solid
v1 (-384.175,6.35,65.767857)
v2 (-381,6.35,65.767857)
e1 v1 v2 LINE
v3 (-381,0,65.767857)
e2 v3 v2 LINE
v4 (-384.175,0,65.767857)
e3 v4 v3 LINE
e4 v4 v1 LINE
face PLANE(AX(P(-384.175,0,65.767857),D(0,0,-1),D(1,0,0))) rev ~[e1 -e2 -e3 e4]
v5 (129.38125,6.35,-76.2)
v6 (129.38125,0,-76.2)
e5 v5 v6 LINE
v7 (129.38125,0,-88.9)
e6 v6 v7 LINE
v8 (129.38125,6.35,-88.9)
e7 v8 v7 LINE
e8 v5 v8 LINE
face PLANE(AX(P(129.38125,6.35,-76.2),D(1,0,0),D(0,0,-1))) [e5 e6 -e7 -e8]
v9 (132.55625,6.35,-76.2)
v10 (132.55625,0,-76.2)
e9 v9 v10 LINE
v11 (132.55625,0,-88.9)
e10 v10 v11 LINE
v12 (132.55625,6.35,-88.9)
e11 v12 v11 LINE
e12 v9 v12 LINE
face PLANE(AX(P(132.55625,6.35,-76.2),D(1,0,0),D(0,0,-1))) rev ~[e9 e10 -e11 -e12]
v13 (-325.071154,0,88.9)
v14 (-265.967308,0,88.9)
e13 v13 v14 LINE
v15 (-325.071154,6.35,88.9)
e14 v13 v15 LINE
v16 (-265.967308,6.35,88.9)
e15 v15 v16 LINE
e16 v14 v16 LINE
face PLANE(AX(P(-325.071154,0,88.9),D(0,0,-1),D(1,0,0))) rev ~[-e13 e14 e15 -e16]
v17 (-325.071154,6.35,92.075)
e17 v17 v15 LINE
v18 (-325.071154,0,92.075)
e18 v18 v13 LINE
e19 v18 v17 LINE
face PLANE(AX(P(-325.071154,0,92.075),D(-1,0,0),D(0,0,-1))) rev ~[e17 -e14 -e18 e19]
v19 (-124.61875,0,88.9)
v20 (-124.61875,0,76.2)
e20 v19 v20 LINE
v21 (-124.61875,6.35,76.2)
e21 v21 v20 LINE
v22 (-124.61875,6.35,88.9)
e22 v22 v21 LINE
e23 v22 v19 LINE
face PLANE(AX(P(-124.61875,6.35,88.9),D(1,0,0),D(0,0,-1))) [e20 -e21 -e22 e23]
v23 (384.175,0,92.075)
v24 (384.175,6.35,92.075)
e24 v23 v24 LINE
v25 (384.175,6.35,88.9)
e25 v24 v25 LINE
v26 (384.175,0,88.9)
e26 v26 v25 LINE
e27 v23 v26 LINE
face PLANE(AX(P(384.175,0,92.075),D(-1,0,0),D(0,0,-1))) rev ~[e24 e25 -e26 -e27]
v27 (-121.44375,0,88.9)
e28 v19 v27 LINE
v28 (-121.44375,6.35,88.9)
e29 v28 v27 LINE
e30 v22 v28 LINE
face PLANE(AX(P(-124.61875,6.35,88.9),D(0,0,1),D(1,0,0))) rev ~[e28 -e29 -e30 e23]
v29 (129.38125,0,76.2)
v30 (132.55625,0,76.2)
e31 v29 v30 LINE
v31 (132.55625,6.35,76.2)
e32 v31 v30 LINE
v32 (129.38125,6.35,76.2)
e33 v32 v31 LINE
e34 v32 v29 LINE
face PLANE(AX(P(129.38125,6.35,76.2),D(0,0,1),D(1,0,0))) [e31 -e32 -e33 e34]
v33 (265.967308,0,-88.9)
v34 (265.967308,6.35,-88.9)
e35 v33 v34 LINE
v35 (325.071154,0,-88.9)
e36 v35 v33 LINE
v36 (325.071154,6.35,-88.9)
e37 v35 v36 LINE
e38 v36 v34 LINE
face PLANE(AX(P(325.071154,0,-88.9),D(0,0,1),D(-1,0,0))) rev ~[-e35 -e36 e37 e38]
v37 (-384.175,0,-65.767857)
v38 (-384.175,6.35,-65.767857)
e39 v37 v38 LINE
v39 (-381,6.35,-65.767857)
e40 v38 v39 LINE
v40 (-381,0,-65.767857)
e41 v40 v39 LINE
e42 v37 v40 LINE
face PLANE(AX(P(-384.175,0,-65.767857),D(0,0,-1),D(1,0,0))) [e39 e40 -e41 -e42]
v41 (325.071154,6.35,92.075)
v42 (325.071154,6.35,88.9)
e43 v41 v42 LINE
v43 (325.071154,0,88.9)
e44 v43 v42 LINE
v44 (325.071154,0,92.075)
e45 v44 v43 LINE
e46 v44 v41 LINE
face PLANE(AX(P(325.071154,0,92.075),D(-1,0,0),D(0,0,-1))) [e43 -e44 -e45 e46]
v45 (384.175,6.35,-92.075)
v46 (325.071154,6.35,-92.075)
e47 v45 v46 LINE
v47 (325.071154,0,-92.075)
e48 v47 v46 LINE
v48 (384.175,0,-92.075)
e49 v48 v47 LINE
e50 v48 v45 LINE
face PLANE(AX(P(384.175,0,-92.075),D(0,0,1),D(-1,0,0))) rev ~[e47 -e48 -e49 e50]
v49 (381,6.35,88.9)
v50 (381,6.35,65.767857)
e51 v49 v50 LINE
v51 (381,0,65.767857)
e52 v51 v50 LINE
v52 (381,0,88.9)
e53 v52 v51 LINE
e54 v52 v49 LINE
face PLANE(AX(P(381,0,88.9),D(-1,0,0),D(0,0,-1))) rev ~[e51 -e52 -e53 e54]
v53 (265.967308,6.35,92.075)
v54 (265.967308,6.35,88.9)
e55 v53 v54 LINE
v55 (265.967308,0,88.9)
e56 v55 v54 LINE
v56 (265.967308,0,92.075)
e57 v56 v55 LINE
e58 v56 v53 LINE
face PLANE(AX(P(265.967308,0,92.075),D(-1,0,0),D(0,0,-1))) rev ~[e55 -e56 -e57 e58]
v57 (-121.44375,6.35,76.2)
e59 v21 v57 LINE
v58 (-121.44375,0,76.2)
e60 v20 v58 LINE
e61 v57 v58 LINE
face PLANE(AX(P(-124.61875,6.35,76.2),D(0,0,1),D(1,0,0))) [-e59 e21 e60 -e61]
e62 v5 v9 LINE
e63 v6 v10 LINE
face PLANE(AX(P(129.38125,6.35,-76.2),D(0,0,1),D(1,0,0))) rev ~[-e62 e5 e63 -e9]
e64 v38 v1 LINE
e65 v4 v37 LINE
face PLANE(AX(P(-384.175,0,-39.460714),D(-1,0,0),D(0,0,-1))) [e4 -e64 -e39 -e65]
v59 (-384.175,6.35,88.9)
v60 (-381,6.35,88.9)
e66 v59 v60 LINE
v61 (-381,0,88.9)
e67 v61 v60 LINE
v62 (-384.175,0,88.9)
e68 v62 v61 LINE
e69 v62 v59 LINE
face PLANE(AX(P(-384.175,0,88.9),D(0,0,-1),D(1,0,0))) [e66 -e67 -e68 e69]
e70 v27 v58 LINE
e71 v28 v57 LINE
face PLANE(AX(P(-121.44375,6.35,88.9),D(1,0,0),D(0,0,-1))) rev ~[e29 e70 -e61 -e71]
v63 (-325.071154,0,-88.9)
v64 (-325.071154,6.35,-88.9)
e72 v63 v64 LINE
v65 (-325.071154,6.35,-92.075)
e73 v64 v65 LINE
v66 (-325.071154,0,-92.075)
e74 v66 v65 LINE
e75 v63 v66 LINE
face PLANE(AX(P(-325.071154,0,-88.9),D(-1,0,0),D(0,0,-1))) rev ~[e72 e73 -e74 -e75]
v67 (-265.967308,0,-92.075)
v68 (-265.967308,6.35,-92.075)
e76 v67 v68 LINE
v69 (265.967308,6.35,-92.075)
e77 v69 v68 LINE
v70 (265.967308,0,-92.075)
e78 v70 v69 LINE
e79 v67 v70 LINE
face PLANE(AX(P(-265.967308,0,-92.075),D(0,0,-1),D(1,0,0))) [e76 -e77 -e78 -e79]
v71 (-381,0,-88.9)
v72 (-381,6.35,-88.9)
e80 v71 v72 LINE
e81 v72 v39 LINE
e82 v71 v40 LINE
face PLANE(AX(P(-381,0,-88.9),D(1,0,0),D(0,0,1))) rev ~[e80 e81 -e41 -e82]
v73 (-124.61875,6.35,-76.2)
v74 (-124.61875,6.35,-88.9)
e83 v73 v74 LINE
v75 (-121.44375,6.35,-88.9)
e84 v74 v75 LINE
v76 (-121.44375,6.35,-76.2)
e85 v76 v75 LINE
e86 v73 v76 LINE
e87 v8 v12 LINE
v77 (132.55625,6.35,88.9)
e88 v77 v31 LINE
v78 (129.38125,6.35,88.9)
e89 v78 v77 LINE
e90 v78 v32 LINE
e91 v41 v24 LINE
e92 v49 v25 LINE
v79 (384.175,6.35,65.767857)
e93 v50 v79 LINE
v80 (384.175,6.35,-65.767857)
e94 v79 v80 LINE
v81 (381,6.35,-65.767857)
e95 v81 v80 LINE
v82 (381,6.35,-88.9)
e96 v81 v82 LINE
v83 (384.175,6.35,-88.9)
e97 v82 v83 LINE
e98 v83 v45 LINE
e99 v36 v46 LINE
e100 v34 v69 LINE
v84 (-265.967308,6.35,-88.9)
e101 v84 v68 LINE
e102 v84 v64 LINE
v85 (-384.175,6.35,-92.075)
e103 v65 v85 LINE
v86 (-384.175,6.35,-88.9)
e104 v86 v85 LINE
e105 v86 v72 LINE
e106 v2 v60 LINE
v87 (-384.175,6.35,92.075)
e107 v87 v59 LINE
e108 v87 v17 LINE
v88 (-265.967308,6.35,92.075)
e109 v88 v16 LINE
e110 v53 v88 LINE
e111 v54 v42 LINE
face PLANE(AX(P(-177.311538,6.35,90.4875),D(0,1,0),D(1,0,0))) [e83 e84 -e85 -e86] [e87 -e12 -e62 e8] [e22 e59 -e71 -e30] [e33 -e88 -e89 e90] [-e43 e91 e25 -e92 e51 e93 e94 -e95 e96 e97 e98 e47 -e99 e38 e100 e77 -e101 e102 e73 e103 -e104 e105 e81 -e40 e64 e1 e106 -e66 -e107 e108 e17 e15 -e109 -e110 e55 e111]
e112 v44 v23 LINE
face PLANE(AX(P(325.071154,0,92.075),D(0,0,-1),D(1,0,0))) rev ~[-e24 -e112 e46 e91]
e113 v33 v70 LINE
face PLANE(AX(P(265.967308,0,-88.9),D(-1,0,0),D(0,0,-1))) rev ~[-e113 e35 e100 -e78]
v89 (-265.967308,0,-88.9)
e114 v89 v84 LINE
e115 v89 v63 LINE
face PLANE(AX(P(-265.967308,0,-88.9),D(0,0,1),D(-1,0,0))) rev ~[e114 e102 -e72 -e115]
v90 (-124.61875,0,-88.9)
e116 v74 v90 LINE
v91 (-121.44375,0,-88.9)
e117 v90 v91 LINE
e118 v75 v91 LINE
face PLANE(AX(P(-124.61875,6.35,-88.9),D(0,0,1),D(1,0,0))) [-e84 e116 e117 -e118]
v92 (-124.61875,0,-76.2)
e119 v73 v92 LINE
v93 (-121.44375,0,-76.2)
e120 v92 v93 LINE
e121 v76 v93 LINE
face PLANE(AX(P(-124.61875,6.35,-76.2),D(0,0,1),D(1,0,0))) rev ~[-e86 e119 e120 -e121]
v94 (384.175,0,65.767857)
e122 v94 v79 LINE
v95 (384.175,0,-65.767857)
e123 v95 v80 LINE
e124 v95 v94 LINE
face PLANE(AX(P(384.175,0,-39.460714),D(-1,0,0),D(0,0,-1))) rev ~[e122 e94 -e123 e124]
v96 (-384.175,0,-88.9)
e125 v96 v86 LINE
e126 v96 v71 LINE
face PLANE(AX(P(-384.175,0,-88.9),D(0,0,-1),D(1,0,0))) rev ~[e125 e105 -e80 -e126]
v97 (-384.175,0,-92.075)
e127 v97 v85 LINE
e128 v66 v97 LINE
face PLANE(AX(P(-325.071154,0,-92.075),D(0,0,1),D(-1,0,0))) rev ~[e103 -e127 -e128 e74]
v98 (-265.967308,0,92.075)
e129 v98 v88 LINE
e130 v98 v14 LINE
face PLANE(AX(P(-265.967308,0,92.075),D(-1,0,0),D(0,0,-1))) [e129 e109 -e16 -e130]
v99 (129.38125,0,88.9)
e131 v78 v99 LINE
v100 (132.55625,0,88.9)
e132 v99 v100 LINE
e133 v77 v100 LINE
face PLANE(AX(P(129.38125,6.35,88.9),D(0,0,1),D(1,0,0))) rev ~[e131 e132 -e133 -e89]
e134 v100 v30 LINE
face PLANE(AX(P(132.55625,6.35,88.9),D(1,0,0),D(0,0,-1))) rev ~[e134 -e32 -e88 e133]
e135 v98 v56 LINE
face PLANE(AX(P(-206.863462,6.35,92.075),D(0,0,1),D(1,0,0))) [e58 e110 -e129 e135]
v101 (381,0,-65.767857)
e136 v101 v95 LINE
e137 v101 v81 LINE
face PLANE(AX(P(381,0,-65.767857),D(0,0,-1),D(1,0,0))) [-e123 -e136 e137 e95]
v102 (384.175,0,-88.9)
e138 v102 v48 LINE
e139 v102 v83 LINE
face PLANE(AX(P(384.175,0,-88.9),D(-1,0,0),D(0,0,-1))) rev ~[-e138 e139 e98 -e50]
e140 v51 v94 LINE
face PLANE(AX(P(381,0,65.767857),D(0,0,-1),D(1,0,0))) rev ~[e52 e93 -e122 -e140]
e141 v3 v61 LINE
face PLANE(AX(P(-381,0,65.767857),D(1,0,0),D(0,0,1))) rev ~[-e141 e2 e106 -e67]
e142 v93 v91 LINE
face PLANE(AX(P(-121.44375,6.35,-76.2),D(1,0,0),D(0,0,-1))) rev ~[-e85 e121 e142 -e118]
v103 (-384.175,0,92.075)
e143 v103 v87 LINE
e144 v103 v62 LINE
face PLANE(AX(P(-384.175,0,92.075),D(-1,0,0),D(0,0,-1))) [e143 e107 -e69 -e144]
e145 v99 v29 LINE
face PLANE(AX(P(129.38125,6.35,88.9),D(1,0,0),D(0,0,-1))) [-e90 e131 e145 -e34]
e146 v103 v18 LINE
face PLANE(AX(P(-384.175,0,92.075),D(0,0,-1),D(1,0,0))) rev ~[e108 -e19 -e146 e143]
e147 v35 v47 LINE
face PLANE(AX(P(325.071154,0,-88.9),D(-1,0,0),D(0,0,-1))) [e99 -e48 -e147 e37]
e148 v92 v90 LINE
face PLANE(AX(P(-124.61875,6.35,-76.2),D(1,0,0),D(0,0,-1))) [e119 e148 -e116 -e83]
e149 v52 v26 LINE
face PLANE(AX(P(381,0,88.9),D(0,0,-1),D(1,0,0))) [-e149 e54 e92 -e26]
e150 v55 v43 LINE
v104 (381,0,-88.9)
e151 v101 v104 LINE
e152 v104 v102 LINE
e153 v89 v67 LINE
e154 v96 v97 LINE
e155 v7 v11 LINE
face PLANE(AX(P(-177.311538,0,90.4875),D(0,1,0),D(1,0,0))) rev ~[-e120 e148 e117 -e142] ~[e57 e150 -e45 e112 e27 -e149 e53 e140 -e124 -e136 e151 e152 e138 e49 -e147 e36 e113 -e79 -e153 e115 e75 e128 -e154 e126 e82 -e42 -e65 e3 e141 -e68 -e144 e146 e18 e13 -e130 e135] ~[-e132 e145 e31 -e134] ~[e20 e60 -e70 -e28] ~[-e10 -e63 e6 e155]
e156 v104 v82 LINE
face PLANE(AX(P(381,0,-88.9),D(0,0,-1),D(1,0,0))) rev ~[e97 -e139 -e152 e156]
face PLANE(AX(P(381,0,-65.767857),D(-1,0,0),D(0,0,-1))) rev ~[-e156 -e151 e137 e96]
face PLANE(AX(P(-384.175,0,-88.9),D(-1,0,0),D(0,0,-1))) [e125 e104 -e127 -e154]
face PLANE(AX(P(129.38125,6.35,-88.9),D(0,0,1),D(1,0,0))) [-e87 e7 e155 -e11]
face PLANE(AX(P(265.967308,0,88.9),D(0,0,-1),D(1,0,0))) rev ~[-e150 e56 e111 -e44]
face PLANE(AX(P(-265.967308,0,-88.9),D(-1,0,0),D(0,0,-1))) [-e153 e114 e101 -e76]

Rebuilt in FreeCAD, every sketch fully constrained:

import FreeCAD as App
import Part
import Sketcher
from FreeCAD import Vector
Q = App.Units.Quantity

doc = App.newDocument("Part")
body = doc.addObject("PartDesign::Body", "Body")

# Sketch on XZ plane
sketch1 = body.newObject("Sketcher::SketchObject", "Sketch")
sketch1.AttachmentSupport = (doc.getObject("XZ_Plane"), [""])
sketch1.MapMode = "FlatFace"
sketch1.addGeometry(Part.LineSegment(Vector(-381, -88.9, 0), Vector(-381, -65.8, 0)), False)
sketch1.addGeometry(Part.LineSegment(Vector(-381, -65.8, 0), Vector(-384.2, -65.8, 0)), False)
sketch1.addGeometry(Part.LineSegment(Vector(-384.2, -65.8, 0), Vector(-384.2, -39.5, 0)), False)
sketch1.addGeometry(Part.LineSegment(Vector(-384.2, -39.5, 0), Vector(-381, -39.5, 0)), False)
sketch1.addGeometry(Part.LineSegment(Vector(-381, -39.5, 0), Vector(-381, -13.2, 0)), False)
sketch1.addGeometry(Part.LineSegment(Vector(-381, -13.2, 0), Vector(-384.2, -13.2, 0)), False)
sketch1.addGeometry(Part.LineSegment(Vector(-384.2, -13.2, 0), Vector(-384.2, 13.2, 0)), False)
sketch1.addGeometry(Part.LineSegment(Vector(-384.2, 13.2, 0), Vector(-381, 13.2, 0)), False)
sketch1.addGeometry(Part.LineSegment(Vector(-381, 13.2, 0), Vector(-381, 39.5, 0)), False)
sketch1.addGeometry(Part.LineSegment(Vector(-381, 39.5, 0), Vector(-384.2, 39.5, 0)), False)
sketch1.addGeometry(Part.LineSegment(Vector(-384.2, 39.5, 0), Vector(-384.2, 65.8, 0)), False)
sketch1.addGeometry(Part.LineSegment(Vector(-384.2, 65.8, 0), Vector(-381, 65.8, 0)), False)
sketch1.addGeometry(Part.LineSegment(Vector(-381, 65.8, 0), Vector(-381, 88.9, 0)), False)
sketch1.addGeometry(Part.LineSegment(Vector(-381, 88.9, 0), Vector(-384.2, 88.9, 0)), False)
sketch1.addGeometry(Part.LineSegment(Vector(-384.2, 88.9, 0), Vector(-384.2, 92.1, 0)), False)
sketch1.addGeometry(Part.LineSegment(Vector(-384.2, 92.1, 0), Vector(-325.1, 92.1, 0)), False)
sketch1.addGeometry(Part.LineSegment(Vector(-325.1, 92.1, 0), Vector(-325.1, 88.9, 0)), False)
sketch1.addGeometry(Part.LineSegment(Vector(-325.1, 88.9, 0), Vector(-266, 88.9, 0)), False)
sketch1.addGeometry(Part.LineSegment(Vector(-266, 88.9, 0), Vector(-266, 92.1, 0)), False)
sketch1.addGeometry(Part.LineSegment(Vector(-266, 92.1, 0), Vector(-206.9, 92.1, 0)), False)
sketch1.addGeometry(Part.LineSegment(Vector(-206.9, 92.1, 0), Vector(-206.9, 88.9, 0)), False)
sketch1.addGeometry(Part.LineSegment(Vector(-206.9, 88.9, 0), Vector(-147.8, 88.9, 0)), False)
sketch1.addGeometry(Part.LineSegment(Vector(-147.8, 88.9, 0), Vector(-147.8, 92.1, 0)), False)
sketch1.addGeometry(Part.LineSegment(Vector(-147.8, 92.1, 0), Vector(-88.7, 92.1, 0)), False)
sketch1.addGeometry(Part.LineSegment(Vector(-88.7, 92.1, 0), Vector(-88.7, 88.9, 0)), False)
sketch1.addGeometry(Part.LineSegment(Vector(-88.7, 88.9, 0), Vector(-29.6, 88.9, 0)), False)
sketch1.addGeometry(Part.LineSegment(Vector(-29.6, 88.9, 0), Vector(-29.6, 92.1, 0)), False)
sketch1.addGeometry(Part.LineSegment(Vector(-29.6, 92.1, 0), Vector(29.6, 92.1, 0)), False)
sketch1.addGeometry(Part.LineSegment(Vector(29.6, 92.1, 0), Vector(29.6, 88.9, 0)), False)
sketch1.addGeometry(Part.LineSegment(Vector(29.6, 88.9, 0), Vector(88.7, 88.9, 0)), False)
sketch1.addGeometry(Part.LineSegment(Vector(88.7, 88.9, 0), Vector(88.7, 92.1, 0)), False)
sketch1.addGeometry(Part.LineSegment(Vector(88.7, 92.1, 0), Vector(147.8, 92.1, 0)), False)
sketch1.addGeometry(Part.LineSegment(Vector(147.8, 92.1, 0), Vector(147.8, 88.9, 0)), False)
sketch1.addGeometry(Part.LineSegment(Vector(147.8, 88.9, 0), Vector(206.9, 88.9, 0)), False)
sketch1.addGeometry(Part.LineSegment(Vector(206.9, 88.9, 0), Vector(206.9, 92.1, 0)), False)
sketch1.addGeometry(Part.LineSegment(Vector(206.9, 92.1, 0), Vector(266, 92.1, 0)), False)
sketch1.addGeometry(Part.LineSegment(Vector(266, 92.1, 0), Vector(266, 88.9, 0)), False)
sketch1.addGeometry(Part.LineSegment(Vector(266, 88.9, 0), Vector(325.1, 88.9, 0)), False)
sketch1.addGeometry(Part.LineSegment(Vector(325.1, 88.9, 0), Vector(325.1, 92.1, 0)), False)
sketch1.addGeometry(Part.LineSegment(Vector(325.1, 92.1, 0), Vector(384.2, 92.1, 0)), False)
sketch1.addGeometry(Part.LineSegment(Vector(384.2, 92.1, 0), Vector(384.2, 88.9, 0)), False)
sketch1.addGeometry(Part.LineSegment(Vector(384.2, 88.9, 0), Vector(381, 88.9, 0)), False)
sketch1.addGeometry(Part.LineSegment(Vector(381, 88.9, 0), Vector(381, 65.8, 0)), False)
sketch1.addGeometry(Part.LineSegment(Vector(381, 65.8, 0), Vector(384.2, 65.8, 0)), False)
sketch1.addGeometry(Part.LineSegment(Vector(384.2, 65.8, 0), Vector(384.2, 39.5, 0)), False)
sketch1.addGeometry(Part.LineSegment(Vector(384.2, 39.5, 0), Vector(381, 39.5, 0)), False)
sketch1.addGeometry(Part.LineSegment(Vector(381, 39.5, 0), Vector(381, 13.2, 0)), False)
sketch1.addGeometry(Part.LineSegment(Vector(381, 13.2, 0), Vector(384.2, 13.2, 0)), False)
sketch1.addGeometry(Part.LineSegment(Vector(384.2, 13.2, 0), Vector(384.2, -13.2, 0)), False)
sketch1.addGeometry(Part.LineSegment(Vector(384.2, -13.2, 0), Vector(381, -13.2, 0)), False)
sketch1.addGeometry(Part.LineSegment(Vector(381, -13.2, 0), Vector(381, -39.5, 0)), False)
sketch1.addGeometry(Part.LineSegment(Vector(381, -39.5, 0), Vector(384.2, -39.5, 0)), False)
sketch1.addGeometry(Part.LineSegment(Vector(384.2, -39.5, 0), Vector(384.2, -65.8, 0)), False)
sketch1.addGeometry(Part.LineSegment(Vector(384.2, -65.8, 0), Vector(381, -65.8, 0)), False)
sketch1.addGeometry(Part.LineSegment(Vector(381, -65.8, 0), Vector(381, -88.9, 0)), False)
sketch1.addGeometry(Part.LineSegment(Vector(381, -88.9, 0), Vector(384.2, -88.9, 0)), False)
sketch1.addGeometry(Part.LineSegment(Vector(384.2, -88.9, 0), Vector(384.2, -92.1, 0)), False)
sketch1.addGeometry(Part.LineSegment(Vector(384.2, -92.1, 0), Vector(325.1, -92.1, 0)), False)
sketch1.addGeometry(Part.LineSegment(Vector(325.1, -92.1, 0), Vector(325.1, -88.9, 0)), False)
sketch1.addGeometry(Part.LineSegment(Vector(325.1, -88.9, 0), Vector(266, -88.9, 0)), False)
sketch1.addGeometry(Part.LineSegment(Vector(266, -88.9, 0), Vector(266, -92.1, 0)), False)
sketch1.addGeometry(Part.LineSegment(Vector(266, -92.1, 0), Vector(206.9, -92.1, 0)), False)
sketch1.addGeometry(Part.LineSegment(Vector(206.9, -92.1, 0), Vector(206.9, -88.9, 0)), False)
sketch1.addGeometry(Part.LineSegment(Vector(206.9, -88.9, 0), Vector(147.8, -88.9, 0)), False)
sketch1.addGeometry(Part.LineSegment(Vector(147.8, -88.9, 0), Vector(147.8, -92.1, 0)), False)
sketch1.addGeometry(Part.LineSegment(Vector(147.8, -92.1, 0), Vector(88.7, -92.1, 0)), False)
sketch1.addGeometry(Part.LineSegment(Vector(88.7, -92.1, 0), Vector(88.7, -88.9, 0)), False)
sketch1.addGeometry(Part.LineSegment(Vector(88.7, -88.9, 0), Vector(29.6, -88.9, 0)), False)
sketch1.addGeometry(Part.LineSegment(Vector(29.6, -88.9, 0), Vector(29.6, -92.1, 0)), False)
sketch1.addGeometry(Part.LineSegment(Vector(29.6, -92.1, 0), Vector(-29.6, -92.1, 0)), False)
sketch1.addGeometry(Part.LineSegment(Vector(-29.6, -92.1, 0), Vector(-29.6, -88.9, 0)), False)
sketch1.addGeometry(Part.LineSegment(Vector(-29.6, -88.9, 0), Vector(-88.7, -88.9, 0)), False)
sketch1.addGeometry(Part.LineSegment(Vector(-88.7, -88.9, 0), Vector(-88.7, -92.1, 0)), False)
sketch1.addGeometry(Part.LineSegment(Vector(-88.7, -92.1, 0), Vector(-147.8, -92.1, 0)), False)
sketch1.addGeometry(Part.LineSegment(Vector(-147.8, -92.1, 0), Vector(-147.8, -88.9, 0)), False)
sketch1.addGeometry(Part.LineSegment(Vector(-147.8, -88.9, 0), Vector(-206.9, -88.9, 0)), False)
sketch1.addGeometry(Part.LineSegment(Vector(-206.9, -88.9, 0), Vector(-206.9, -92.1, 0)), False)
sketch1.addGeometry(Part.LineSegment(Vector(-206.9, -92.1, 0), Vector(-266, -92.1, 0)), False)
sketch1.addGeometry(Part.LineSegment(Vector(-266, -92.1, 0), Vector(-266, -88.9, 0)), False)
sketch1.addGeometry(Part.LineSegment(Vector(-266, -88.9, 0), Vector(-325.1, -88.9, 0)), False)
sketch1.addGeometry(Part.LineSegment(Vector(-325.1, -88.9, 0), Vector(-325.1, -92.1, 0)), False)
sketch1.addGeometry(Part.LineSegment(Vector(-325.1, -92.1, 0), Vector(-384.2, -92.1, 0)), False)
sketch1.addGeometry(Part.LineSegment(Vector(-384.2, -92.1, 0), Vector(-384.2, -88.9, 0)), False)
sketch1.addGeometry(Part.LineSegment(Vector(-384.2, -88.9, 0), Vector(-381, -88.9, 0)), False)
sketch1.addConstraint(Sketcher.Constraint("Coincident", 0, 2, 1, 1))
sketch1.addConstraint(Sketcher.Constraint("Coincident", 1, 2, 2, 1))
sketch1.addConstraint(Sketcher.Constraint("Coincident", 2, 2, 3, 1))
sketch1.addConstraint(Sketcher.Constraint("Coincident", 3, 2, 4, 1))
sketch1.addConstraint(Sketcher.Constraint("Coincident", 4, 2, 5, 1))
sketch1.addConstraint(Sketcher.Constraint("Coincident", 5, 2, 6, 1))
sketch1.addConstraint(Sketcher.Constraint("Coincident", 6, 2, 7, 1))
sketch1.addConstraint(Sketcher.Constraint("Coincident", 7, 2, 8, 1))
sketch1.addConstraint(Sketcher.Constraint("Coincident", 8, 2, 9, 1))
sketch1.addConstraint(Sketcher.Constraint("Coincident", 9, 2, 10, 1))
sketch1.addConstraint(Sketcher.Constraint("Coincident", 10, 2, 11, 1))
sketch1.addConstraint(Sketcher.Constraint("Coincident", 11, 2, 12, 1))
sketch1.addConstraint(Sketcher.Constraint("Coincident", 12, 2, 13, 1))
sketch1.addConstraint(Sketcher.Constraint("Coincident", 13, 2, 14, 1))
sketch1.addConstraint(Sketcher.Constraint("Coincident", 14, 2, 15, 1))
sketch1.addConstraint(Sketcher.Constraint("Coincident", 15, 2, 16, 1))
sketch1.addConstraint(Sketcher.Constraint("Coincident", 16, 2, 17, 1))
sketch1.addConstraint(Sketcher.Constraint("Coincident", 17, 2, 18, 1))
sketch1.addConstraint(Sketcher.Constraint("Coincident", 18, 2, 19, 1))
sketch1.addConstraint(Sketcher.Constraint("Coincident", 19, 2, 20, 1))
sketch1.addConstraint(Sketcher.Constraint("Coincident", 20, 2, 21, 1))
sketch1.addConstraint(Sketcher.Constraint("Coincident", 21, 2, 22, 1))
sketch1.addConstraint(Sketcher.Constraint("Coincident", 22, 2, 23, 1))
sketch1.addConstraint(Sketcher.Constraint("Coincident", 23, 2, 24, 1))
sketch1.addConstraint(Sketcher.Constraint("Coincident", 24, 2, 25, 1))
sketch1.addConstraint(Sketcher.Constraint("Coincident", 25, 2, 26, 1))
sketch1.addConstraint(Sketcher.Constraint("Coincident", 26, 2, 27, 1))
sketch1.addConstraint(Sketcher.Constraint("Coincident", 27, 2, 28, 1))
sketch1.addConstraint(Sketcher.Constraint("Coincident", 28, 2, 29, 1))
sketch1.addConstraint(Sketcher.Constraint("Coincident", 29, 2, 30, 1))
sketch1.addConstraint(Sketcher.Constraint("Coincident", 30, 2, 31, 1))
sketch1.addConstraint(Sketcher.Constraint("Coincident", 31, 2, 32, 1))
sketch1.addConstraint(Sketcher.Constraint("Coincident", 32, 2, 33, 1))
sketch1.addConstraint(Sketcher.Constraint("Coincident", 33, 2, 34, 1))
sketch1.addConstraint(Sketcher.Constraint("Coincident", 34, 2, 35, 1))
sketch1.addConstraint(Sketcher.Constraint("Coincident", 35, 2, 36, 1))
sketch1.addConstraint(Sketcher.Constraint("Coincident", 36, 2, 37, 1))
sketch1.addConstraint(Sketcher.Constraint("Coincident", 37, 2, 38, 1))
sketch1.addConstraint(Sketcher.Constraint("Coincident", 38, 2, 39, 1))
sketch1.addConstraint(Sketcher.Constraint("Coincident", 39, 2, 40, 1))
sketch1.addConstraint(Sketcher.Constraint("Coincident", 40, 2, 41, 1))
sketch1.addConstraint(Sketcher.Constraint("Coincident", 41, 2, 42, 1))
sketch1.addConstraint(Sketcher.Constraint("Coincident", 42, 2, 43, 1))
sketch1.addConstraint(Sketcher.Constraint("Coincident", 43, 2, 44, 1))
sketch1.addConstraint(Sketcher.Constraint("Coincident", 44, 2, 45, 1))
sketch1.addConstraint(Sketcher.Constraint("Coincident", 45, 2, 46, 1))
sketch1.addConstraint(Sketcher.Constraint("Coincident", 46, 2, 47, 1))
sketch1.addConstraint(Sketcher.Constraint("Coincident", 47, 2, 48, 1))
sketch1.addConstraint(Sketcher.Constraint("Coincident", 48, 2, 49, 1))
sketch1.addConstraint(Sketcher.Constraint("Coincident", 49, 2, 50, 1))
sketch1.addConstraint(Sketcher.Constraint("Coincident", 50, 2, 51, 1))
sketch1.addConstraint(Sketcher.Constraint("Coincident", 51, 2, 52, 1))
sketch1.addConstraint(Sketcher.Constraint("Coincident", 52, 2, 53, 1))
sketch1.addConstraint(Sketcher.Constraint("Coincident", 53, 2, 54, 1))
sketch1.addConstraint(Sketcher.Constraint("Coincident", 54, 2, 55, 1))
sketch1.addConstraint(Sketcher.Constraint("Coincident", 55, 2, 56, 1))
sketch1.addConstraint(Sketcher.Constraint("Coincident", 56, 2, 57, 1))
sketch1.addConstraint(Sketcher.Constraint("Coincident", 57, 2, 58, 1))
sketch1.addConstraint(Sketcher.Constraint("Coincident", 58, 2, 59, 1))
sketch1.addConstraint(Sketcher.Constraint("Coincident", 59, 2, 60, 1))
sketch1.addConstraint(Sketcher.Constraint("Coincident", 60, 2, 61, 1))
sketch1.addConstraint(Sketcher.Constraint("Coincident", 61, 2, 62, 1))
sketch1.addConstraint(Sketcher.Constraint("Coincident", 62, 2, 63, 1))
sketch1.addConstraint(Sketcher.Constraint("Coincident", 63, 2, 64, 1))
sketch1.addConstraint(Sketcher.Constraint("Coincident", 64, 2, 65, 1))
sketch1.addConstraint(Sketcher.Constraint("Coincident", 65, 2, 66, 1))
sketch1.addConstraint(Sketcher.Constraint("Coincident", 66, 2, 67, 1))
sketch1.addConstraint(Sketcher.Constraint("Coincident", 67, 2, 68, 1))
sketch1.addConstraint(Sketcher.Constraint("Coincident", 68, 2, 69, 1))
sketch1.addConstraint(Sketcher.Constraint("Coincident", 69, 2, 70, 1))
sketch1.addConstraint(Sketcher.Constraint("Coincident", 70, 2, 71, 1))
sketch1.addConstraint(Sketcher.Constraint("Coincident", 71, 2, 72, 1))
sketch1.addConstraint(Sketcher.Constraint("Coincident", 72, 2, 73, 1))
sketch1.addConstraint(Sketcher.Constraint("Coincident", 73, 2, 74, 1))
sketch1.addConstraint(Sketcher.Constraint("Coincident", 74, 2, 75, 1))
sketch1.addConstraint(Sketcher.Constraint("Coincident", 75, 2, 76, 1))
sketch1.addConstraint(Sketcher.Constraint("Coincident", 76, 2, 77, 1))
sketch1.addConstraint(Sketcher.Constraint("Coincident", 77, 2, 78, 1))
sketch1.addConstraint(Sketcher.Constraint("Coincident", 78, 2, 79, 1))
sketch1.addConstraint(Sketcher.Constraint("Coincident", 79, 2, 80, 1))
sketch1.addConstraint(Sketcher.Constraint("Coincident", 80, 2, 81, 1))
sketch1.addConstraint(Sketcher.Constraint("Coincident", 81, 2, 82, 1))
sketch1.addConstraint(Sketcher.Constraint("Coincident", 82, 2, 83, 1))
sketch1.addConstraint(Sketcher.Constraint("Coincident", 83, 2, 0, 1))
sketch1.addConstraint(Sketcher.Constraint("Vertical", 0))
sketch1.addConstraint(Sketcher.Constraint("Horizontal", 1))
sketch1.addConstraint(Sketcher.Constraint("Vertical", 2))
sketch1.addConstraint(Sketcher.Constraint("Horizontal", 3))
sketch1.addConstraint(Sketcher.Constraint("Vertical", 4))
sketch1.addConstraint(Sketcher.Constraint("Horizontal", 5))
sketch1.addConstraint(Sketcher.Constraint("Vertical", 6))
sketch1.addConstraint(Sketcher.Constraint("Horizontal", 7))
sketch1.addConstraint(Sketcher.Constraint("Vertical", 8))
sketch1.addConstraint(Sketcher.Constraint("Horizontal", 9))
sketch1.addConstraint(Sketcher.Constraint("Vertical", 10))
sketch1.addConstraint(Sketcher.Constraint("Horizontal", 11))
sketch1.addConstraint(Sketcher.Constraint("Vertical", 12))
sketch1.addConstraint(Sketcher.Constraint("Horizontal", 13))
sketch1.addConstraint(Sketcher.Constraint("Vertical", 14))
sketch1.addConstraint(Sketcher.Constraint("Horizontal", 15))
sketch1.addConstraint(Sketcher.Constraint("Vertical", 16))
sketch1.addConstraint(Sketcher.Constraint("Horizontal", 17))
sketch1.addConstraint(Sketcher.Constraint("Vertical", 18))
sketch1.addConstraint(Sketcher.Constraint("Horizontal", 19))
sketch1.addConstraint(Sketcher.Constraint("Vertical", 20))
sketch1.addConstraint(Sketcher.Constraint("Horizontal", 21))
sketch1.addConstraint(Sketcher.Constraint("Vertical", 22))
sketch1.addConstraint(Sketcher.Constraint("Horizontal", 23))
sketch1.addConstraint(Sketcher.Constraint("Vertical", 24))
sketch1.addConstraint(Sketcher.Constraint("Horizontal", 25))
sketch1.addConstraint(Sketcher.Constraint("Vertical", 26))
sketch1.addConstraint(Sketcher.Constraint("Horizontal", 27))
sketch1.addConstraint(Sketcher.Constraint("Vertical", 28))
sketch1.addConstraint(Sketcher.Constraint("Horizontal", 29))
sketch1.addConstraint(Sketcher.Constraint("Vertical", 30))
sketch1.addConstraint(Sketcher.Constraint("Horizontal", 31))
sketch1.addConstraint(Sketcher.Constraint("Vertical", 32))
sketch1.addConstraint(Sketcher.Constraint("Horizontal", 33))
sketch1.addConstraint(Sketcher.Constraint("Vertical", 34))
sketch1.addConstraint(Sketcher.Constraint("Horizontal", 35))
sketch1.addConstraint(Sketcher.Constraint("Vertical", 36))
sketch1.addConstraint(Sketcher.Constraint("Horizontal", 37))
sketch1.addConstraint(Sketcher.Constraint("Vertical", 38))
sketch1.addConstraint(Sketcher.Constraint("Horizontal", 39))
sketch1.addConstraint(Sketcher.Constraint("Vertical", 40))
sketch1.addConstraint(Sketcher.Constraint("Horizontal", 41))
sketch1.addConstraint(Sketcher.Constraint("Vertical", 42))
sketch1.addConstraint(Sketcher.Constraint("Horizontal", 43))
sketch1.addConstraint(Sketcher.Constraint("Vertical", 44))
sketch1.addConstraint(Sketcher.Constraint("Horizontal", 45))
sketch1.addConstraint(Sketcher.Constraint("Vertical", 46))
sketch1.addConstraint(Sketcher.Constraint("Horizontal", 47))
sketch1.addConstraint(Sketcher.Constraint("Vertical", 48))
sketch1.addConstraint(Sketcher.Constraint("Horizontal", 49))
sketch1.addConstraint(Sketcher.Constraint("Vertical", 50))
sketch1.addConstraint(Sketcher.Constraint("Horizontal", 51))
sketch1.addConstraint(Sketcher.Constraint("Vertical", 52))
sketch1.addConstraint(Sketcher.Constraint("Horizontal", 53))
sketch1.addConstraint(Sketcher.Constraint("Vertical", 54))
sketch1.addConstraint(Sketcher.Constraint("Horizontal", 55))
sketch1.addConstraint(Sketcher.Constraint("Vertical", 56))
sketch1.addConstraint(Sketcher.Constraint("Horizontal", 57))
sketch1.addConstraint(Sketcher.Constraint("Vertical", 58))
sketch1.addConstraint(Sketcher.Constraint("Horizontal", 59))
sketch1.addConstraint(Sketcher.Constraint("Vertical", 60))
sketch1.addConstraint(Sketcher.Constraint("Horizontal", 61))
sketch1.addConstraint(Sketcher.Constraint("Vertical", 62))
sketch1.addConstraint(Sketcher.Constraint("Horizontal", 63))
sketch1.addConstraint(Sketcher.Constraint("Vertical", 64))
sketch1.addConstraint(Sketcher.Constraint("Horizontal", 65))
sketch1.addConstraint(Sketcher.Constraint("Vertical", 66))
sketch1.addConstraint(Sketcher.Constraint("Horizontal", 67))
sketch1.addConstraint(Sketcher.Constraint("Vertical", 68))
sketch1.addConstraint(Sketcher.Constraint("Horizontal", 69))
sketch1.addConstraint(Sketcher.Constraint("Vertical", 70))
sketch1.addConstraint(Sketcher.Constraint("Horizontal", 71))
sketch1.addConstraint(Sketcher.Constraint("Vertical", 72))
sketch1.addConstraint(Sketcher.Constraint("Horizontal", 73))
sketch1.addConstraint(Sketcher.Constraint("Vertical", 74))
sketch1.addConstraint(Sketcher.Constraint("Horizontal", 75))
sketch1.addConstraint(Sketcher.Constraint("Vertical", 76))
sketch1.addConstraint(Sketcher.Constraint("Horizontal", 77))
sketch1.addConstraint(Sketcher.Constraint("Vertical", 78))
sketch1.addConstraint(Sketcher.Constraint("Horizontal", 79))
sketch1.addConstraint(Sketcher.Constraint("Vertical", 80))
sketch1.addConstraint(Sketcher.Constraint("Horizontal", 81))
sketch1.addConstraint(Sketcher.Constraint("Vertical", 82))
sketch1.addConstraint(Sketcher.Constraint("Horizontal", 83))
sketch1.addConstraint(Sketcher.Constraint("Symmetric", 0, 2, 42, 2, -1, 1))
sketch1.addConstraint(Sketcher.Constraint("Symmetric", 2, 2, 44, 2, -1, 1))
sketch1.addConstraint(Sketcher.Constraint("Symmetric", 4, 2, 46, 2, -1, 1))
sketch1.addConstraint(Sketcher.Constraint("Symmetric", 6, 2, 48, 2, -1, 1))
sketch1.addConstraint(Sketcher.Constraint("Symmetric", 8, 2, 50, 2, -1, 1))
sketch1.addConstraint(Sketcher.Constraint("Symmetric", 10, 2, 52, 2, -1, 1))
sketch1.addConstraint(Sketcher.Constraint("Symmetric", 12, 2, 54, 2, -1, 1))
sketch1.addConstraint(Sketcher.Constraint("Symmetric", 14, 2, 56, 2, -1, 1))
sketch1.addConstraint(Sketcher.Constraint("Symmetric", 16, 2, 58, 2, -1, 1))
sketch1.addConstraint(Sketcher.Constraint("Symmetric", 18, 2, 60, 2, -1, 1))
sketch1.addConstraint(Sketcher.Constraint("Symmetric", 20, 2, 62, 2, -1, 1))
sketch1.addConstraint(Sketcher.Constraint("Symmetric", 22, 2, 64, 2, -1, 1))
sketch1.addConstraint(Sketcher.Constraint("Symmetric", 24, 2, 66, 2, -1, 1))
sketch1.addConstraint(Sketcher.Constraint("Symmetric", 26, 2, 68, 2, -1, 1))
sketch1.addConstraint(Sketcher.Constraint("Symmetric", 28, 2, 70, 2, -1, 1))
sketch1.addConstraint(Sketcher.Constraint("Symmetric", 30, 2, 72, 2, -1, 1))
sketch1.addConstraint(Sketcher.Constraint("Symmetric", 32, 2, 74, 2, -1, 1))
sketch1.addConstraint(Sketcher.Constraint("Symmetric", 34, 2, 76, 2, -1, 1))
sketch1.addConstraint(Sketcher.Constraint("Symmetric", 36, 2, 78, 2, -1, 1))
sketch1.addConstraint(Sketcher.Constraint("Symmetric", 38, 2, 80, 2, -1, 1))
sketch1.addConstraint(Sketcher.Constraint("Symmetric", 40, 2, 82, 2, -1, 1))
sketch1.addConstraint(Sketcher.Constraint("Symmetric", 25, 2, 28, 2, -2))
sketch1.addConstraint(Sketcher.Constraint("Symmetric", 23, 2, 30, 2, -2))
sketch1.addConstraint(Sketcher.Constraint("Symmetric", 21, 2, 32, 2, -2))
sketch1.addConstraint(Sketcher.Constraint("Symmetric", 19, 2, 34, 2, -2))
sketch1.addConstraint(Sketcher.Constraint("Symmetric", 17, 2, 36, 2, -2))
sketch1.addConstraint(Sketcher.Constraint("Symmetric", 15, 2, 38, 2, -2))
sketch1.addConstraint(Sketcher.Constraint("Symmetric", 13, 2, 40, 2, -2))
sketch1.addConstraint(Sketcher.Constraint("Symmetric", 11, 2, 42, 2, -2))
sketch1.addConstraint(Sketcher.Constraint("Symmetric", 9, 2, 44, 2, -2))
sketch1.addConstraint(Sketcher.Constraint("Symmetric", 7, 2, 46, 2, -2))
sketch1.addConstraint(Sketcher.Constraint("Horizontal", 13, 2, 16, 2))
sketch1.addConstraint(Sketcher.Constraint("Horizontal", 15, 2, 18, 2))
sketch1.addConstraint(Sketcher.Constraint("Horizontal", 17, 2, 20, 2))
sketch1.addConstraint(Sketcher.Constraint("Horizontal", 19, 2, 22, 2))
sketch1.addConstraint(Sketcher.Constraint("Horizontal", 21, 2, 24, 2))
sketch1.addConstraint(Sketcher.Constraint("Horizontal", 23, 2, 26, 2))
sketch1.addConstraint(Sketcher.Constraint("Vertical", 0, 2, 3, 2))
sketch1.addConstraint(Sketcher.Constraint("Vertical", 2, 2, 5, 2))
sketch1.addConstraint(Sketcher.Constraint("Vertical", 10, 2, 13, 2))
sketch1.addConstraint(Sketcher.Constraint("Equal", 15, 17))
sketch1.addConstraint(Sketcher.Constraint("Equal", 17, 19))
sketch1.addConstraint(Sketcher.Constraint("Equal", 19, 21))
sketch1.addConstraint(Sketcher.Constraint("Equal", 21, 23))
sketch1.addConstraint(Sketcher.Constraint("Equal", 23, 25))
sketch1.addConstraint(Sketcher.Constraint("Equal", 25, 27))
sketch1.addConstraint(Sketcher.Constraint("Equal", 2, 4))
sketch1.addConstraint(Sketcher.Constraint("Equal", 4, 6))
sketch1.addConstraint(Sketcher.Constraint("Equal", 83, 14))
sketch1.addConstraint(Sketcher.Constraint("DistanceX", 0, 2, -1, 1, Q("15 in")))
sketch1.addConstraint(Sketcher.Constraint("DistanceY", -1, 1, 12, 2, Q("3.5 in")))
sketch1.addConstraint(Sketcher.Constraint("DistanceX", 1, 2, 1, 1, Q("0.125 in")))
sketch1.addConstraint(Sketcher.Constraint("DistanceY", 0, 1, 0, 2, 23.132143))
pad1 = body.newObject("PartDesign::Pad", "Pad")
pad1.Profile = sketch1
pad1.Length = Q("0.25 in")
pad1.Reversed = True

# Sketch on XZ plane
sketch2 = body.newObject("Sketcher::SketchObject", "Sketch001")
sketch2.AttachmentSupport = (doc.getObject("XZ_Plane"), [""])
sketch2.MapMode = "FlatFace"
sketch2.AttachmentOffset = App.Placement(Vector(0, 0, -0.25 * 25.4), App.Rotation())
sketch2.addGeometry(Part.LineSegment(Vector(-124.6, -88.9, 0), Vector(-124.6, -76.2, 0)), False)
sketch2.addGeometry(Part.LineSegment(Vector(-124.6, -76.2, 0), Vector(-121.4, -76.2, 0)), False)
sketch2.addGeometry(Part.LineSegment(Vector(-121.4, -76.2, 0), Vector(-121.4, -88.9, 0)), False)
sketch2.addGeometry(Part.LineSegment(Vector(-121.4, -88.9, 0), Vector(-124.6, -88.9, 0)), False)
sketch2.addGeometry(Part.LineSegment(Vector(-124.6, 76.2, 0), Vector(-124.6, 88.9, 0)), False)
sketch2.addGeometry(Part.LineSegment(Vector(-124.6, 88.9, 0), Vector(-121.4, 88.9, 0)), False)
sketch2.addGeometry(Part.LineSegment(Vector(-121.4, 88.9, 0), Vector(-121.4, 76.2, 0)), False)
sketch2.addGeometry(Part.LineSegment(Vector(-121.4, 76.2, 0), Vector(-124.6, 76.2, 0)), False)
sketch2.addGeometry(Part.LineSegment(Vector(129.4, -88.9, 0), Vector(129.4, -76.2, 0)), False)
sketch2.addGeometry(Part.LineSegment(Vector(129.4, -76.2, 0), Vector(132.6, -76.2, 0)), False)
sketch2.addGeometry(Part.LineSegment(Vector(132.6, -76.2, 0), Vector(132.6, -88.9, 0)), False)
sketch2.addGeometry(Part.LineSegment(Vector(132.6, -88.9, 0), Vector(129.4, -88.9, 0)), False)
sketch2.addGeometry(Part.LineSegment(Vector(129.4, 76.2, 0), Vector(129.4, 88.9, 0)), False)
sketch2.addGeometry(Part.LineSegment(Vector(129.4, 88.9, 0), Vector(132.6, 88.9, 0)), False)
sketch2.addGeometry(Part.LineSegment(Vector(132.6, 88.9, 0), Vector(132.6, 76.2, 0)), False)
sketch2.addGeometry(Part.LineSegment(Vector(132.6, 76.2, 0), Vector(129.4, 76.2, 0)), False)
sketch2.addConstraint(Sketcher.Constraint("Coincident", 0, 2, 1, 1))
sketch2.addConstraint(Sketcher.Constraint("Coincident", 1, 2, 2, 1))
sketch2.addConstraint(Sketcher.Constraint("Coincident", 2, 2, 3, 1))
sketch2.addConstraint(Sketcher.Constraint("Coincident", 3, 2, 0, 1))
sketch2.addConstraint(Sketcher.Constraint("Coincident", 4, 2, 5, 1))
sketch2.addConstraint(Sketcher.Constraint("Coincident", 5, 2, 6, 1))
sketch2.addConstraint(Sketcher.Constraint("Coincident", 6, 2, 7, 1))
sketch2.addConstraint(Sketcher.Constraint("Coincident", 7, 2, 4, 1))
sketch2.addConstraint(Sketcher.Constraint("Coincident", 8, 2, 9, 1))
sketch2.addConstraint(Sketcher.Constraint("Coincident", 9, 2, 10, 1))
sketch2.addConstraint(Sketcher.Constraint("Coincident", 10, 2, 11, 1))
sketch2.addConstraint(Sketcher.Constraint("Coincident", 11, 2, 8, 1))
sketch2.addConstraint(Sketcher.Constraint("Coincident", 12, 2, 13, 1))
sketch2.addConstraint(Sketcher.Constraint("Coincident", 13, 2, 14, 1))
sketch2.addConstraint(Sketcher.Constraint("Coincident", 14, 2, 15, 1))
sketch2.addConstraint(Sketcher.Constraint("Coincident", 15, 2, 12, 1))
sketch2.addConstraint(Sketcher.Constraint("Vertical", 0))
sketch2.addConstraint(Sketcher.Constraint("Horizontal", 1))
sketch2.addConstraint(Sketcher.Constraint("Vertical", 2))
sketch2.addConstraint(Sketcher.Constraint("Horizontal", 3))
sketch2.addConstraint(Sketcher.Constraint("Vertical", 4))
sketch2.addConstraint(Sketcher.Constraint("Horizontal", 5))
sketch2.addConstraint(Sketcher.Constraint("Vertical", 6))
sketch2.addConstraint(Sketcher.Constraint("Horizontal", 7))
sketch2.addConstraint(Sketcher.Constraint("Vertical", 8))
sketch2.addConstraint(Sketcher.Constraint("Horizontal", 9))
sketch2.addConstraint(Sketcher.Constraint("Vertical", 10))
sketch2.addConstraint(Sketcher.Constraint("Horizontal", 11))
sketch2.addConstraint(Sketcher.Constraint("Vertical", 12))
sketch2.addConstraint(Sketcher.Constraint("Horizontal", 13))
sketch2.addConstraint(Sketcher.Constraint("Vertical", 14))
sketch2.addConstraint(Sketcher.Constraint("Horizontal", 15))
sketch2.addConstraint(Sketcher.Constraint("Symmetric", 3, 2, 4, 2, -1))
sketch2.addConstraint(Sketcher.Constraint("Symmetric", 1, 2, 6, 2, -1))
sketch2.addConstraint(Sketcher.Constraint("Symmetric", 11, 2, 12, 2, -1))
sketch2.addConstraint(Sketcher.Constraint("Symmetric", 9, 2, 14, 2, -1))
sketch2.addConstraint(Sketcher.Constraint("Horizontal", 1, 2, 8, 2))
sketch2.addConstraint(Sketcher.Constraint("Horizontal", 3, 2, 10, 2))
sketch2.addConstraint(Sketcher.Constraint("Equal", 7, 9))
sketch2.addConstraint(Sketcher.Constraint("DistanceY", 0, 1, 0, 2, Q("0.5 in")))
sketch2.addConstraint(Sketcher.Constraint("DistanceY", 0, 2, -1, 1, Q("3 in")))
sketch2.addConstraint(Sketcher.Constraint("DistanceX", 0, 2, 8, 2, Q("10 in")))
sketch2.addConstraint(Sketcher.Constraint("DistanceX", 1, 1, 1, 2, Q("0.125 in")))
sketch2.addConstraint(Sketcher.Constraint("DistanceX", 0, 2, -1, 1, Q("4.90625 in")))
pocket1 = body.newObject("PartDesign::Pocket", "Pocket")
pocket1.Profile = sketch2
pocket1.Type = "ThroughAll"
pocket1.Reversed = True

# Sketch on XZ plane
sketch3 = body.newObject("Sketcher::SketchObject", "Sketch002")
sketch3.AttachmentSupport = (doc.getObject("XZ_Plane"), [""])
sketch3.MapMode = "FlatFace"
sketch3.AttachmentOffset = App.Placement(Vector(0, 0, -0.25 * 25.4), App.Rotation())
sketch3.addGeometry(Part.LineSegment(Vector(-206.9, 88.9, 0), Vector(-206.9, 92.1, 0)), False)
sketch3.addGeometry(Part.LineSegment(Vector(-206.9, 92.1, 0), Vector(-147.8, 92.1, 0)), False)
sketch3.addGeometry(Part.LineSegment(Vector(-147.8, 92.1, 0), Vector(-147.8, 88.9, 0)), False)
sketch3.addGeometry(Part.LineSegment(Vector(-147.8, 88.9, 0), Vector(-206.9, 88.9, 0)), False)
sketch3.addGeometry(Part.LineSegment(Vector(-88.7, 88.9, 0), Vector(-88.7, 92.1, 0)), False)
sketch3.addGeometry(Part.LineSegment(Vector(-88.7, 92.1, 0), Vector(-29.6, 92.1, 0)), False)
sketch3.addGeometry(Part.LineSegment(Vector(-29.6, 92.1, 0), Vector(-29.6, 88.9, 0)), False)
sketch3.addGeometry(Part.LineSegment(Vector(-29.6, 88.9, 0), Vector(-88.7, 88.9, 0)), False)
sketch3.addGeometry(Part.LineSegment(Vector(29.6, 88.9, 0), Vector(29.6, 92.1, 0)), False)
sketch3.addGeometry(Part.LineSegment(Vector(29.6, 92.1, 0), Vector(88.7, 92.1, 0)), False)
sketch3.addGeometry(Part.LineSegment(Vector(88.7, 92.1, 0), Vector(88.7, 88.9, 0)), False)
sketch3.addGeometry(Part.LineSegment(Vector(88.7, 88.9, 0), Vector(29.6, 88.9, 0)), False)
sketch3.addGeometry(Part.LineSegment(Vector(147.8, 88.9, 0), Vector(147.8, 92.1, 0)), False)
sketch3.addGeometry(Part.LineSegment(Vector(147.8, 92.1, 0), Vector(206.9, 92.1, 0)), False)
sketch3.addGeometry(Part.LineSegment(Vector(206.9, 92.1, 0), Vector(206.9, 88.9, 0)), False)
sketch3.addGeometry(Part.LineSegment(Vector(206.9, 88.9, 0), Vector(147.8, 88.9, 0)), False)
sketch3.addGeometry(Part.LineSegment(Vector(381, 13.2, 0), Vector(381, 39.5, 0)), False)
sketch3.addGeometry(Part.LineSegment(Vector(381, 39.5, 0), Vector(384.2, 39.5, 0)), False)
sketch3.addGeometry(Part.LineSegment(Vector(384.2, 39.5, 0), Vector(384.2, 13.2, 0)), False)
sketch3.addGeometry(Part.LineSegment(Vector(384.2, 13.2, 0), Vector(381, 13.2, 0)), False)
sketch3.addGeometry(Part.LineSegment(Vector(381, -39.5, 0), Vector(381, -13.2, 0)), False)
sketch3.addGeometry(Part.LineSegment(Vector(381, -13.2, 0), Vector(384.2, -13.2, 0)), False)
sketch3.addGeometry(Part.LineSegment(Vector(384.2, -13.2, 0), Vector(384.2, -39.5, 0)), False)
sketch3.addGeometry(Part.LineSegment(Vector(384.2, -39.5, 0), Vector(381, -39.5, 0)), False)
sketch3.addGeometry(Part.LineSegment(Vector(-384.2, 13.2, 0), Vector(-384.2, 39.5, 0)), False)
sketch3.addGeometry(Part.LineSegment(Vector(-384.2, 39.5, 0), Vector(-381, 39.5, 0)), False)
sketch3.addGeometry(Part.LineSegment(Vector(-381, 39.5, 0), Vector(-381, 13.2, 0)), False)
sketch3.addGeometry(Part.LineSegment(Vector(-381, 13.2, 0), Vector(-384.2, 13.2, 0)), False)
sketch3.addGeometry(Part.LineSegment(Vector(-384.2, -39.5, 0), Vector(-384.2, -13.2, 0)), False)
sketch3.addGeometry(Part.LineSegment(Vector(-384.2, -13.2, 0), Vector(-381, -13.2, 0)), False)
sketch3.addGeometry(Part.LineSegment(Vector(-381, -13.2, 0), Vector(-381, -39.5, 0)), False)
sketch3.addGeometry(Part.LineSegment(Vector(-381, -39.5, 0), Vector(-384.2, -39.5, 0)), False)
sketch3.addGeometry(Part.LineSegment(Vector(-206.9, -92.1, 0), Vector(-206.9, -88.9, 0)), False)
sketch3.addGeometry(Part.LineSegment(Vector(-206.9, -88.9, 0), Vector(-147.8, -88.9, 0)), False)
sketch3.addGeometry(Part.LineSegment(Vector(-147.8, -88.9, 0), Vector(-147.8, -92.1, 0)), False)
sketch3.addGeometry(Part.LineSegment(Vector(-147.8, -92.1, 0), Vector(-206.9, -92.1, 0)), False)
sketch3.addGeometry(Part.LineSegment(Vector(-88.7, -92.1, 0), Vector(-88.7, -88.9, 0)), False)
sketch3.addGeometry(Part.LineSegment(Vector(-88.7, -88.9, 0), Vector(-29.6, -88.9, 0)), False)
sketch3.addGeometry(Part.LineSegment(Vector(-29.6, -88.9, 0), Vector(-29.6, -92.1, 0)), False)
sketch3.addGeometry(Part.LineSegment(Vector(-29.6, -92.1, 0), Vector(-88.7, -92.1, 0)), False)
sketch3.addGeometry(Part.LineSegment(Vector(29.6, -92.1, 0), Vector(29.6, -88.9, 0)), False)
sketch3.addGeometry(Part.LineSegment(Vector(29.6, -88.9, 0), Vector(88.7, -88.9, 0)), False)
sketch3.addGeometry(Part.LineSegment(Vector(88.7, -88.9, 0), Vector(88.7, -92.1, 0)), False)
sketch3.addGeometry(Part.LineSegment(Vector(88.7, -92.1, 0), Vector(29.6, -92.1, 0)), False)
sketch3.addGeometry(Part.LineSegment(Vector(147.8, -92.1, 0), Vector(147.8, -88.9, 0)), False)
sketch3.addGeometry(Part.LineSegment(Vector(147.8, -88.9, 0), Vector(206.9, -88.9, 0)), False)
sketch3.addGeometry(Part.LineSegment(Vector(206.9, -88.9, 0), Vector(206.9, -92.1, 0)), False)
sketch3.addGeometry(Part.LineSegment(Vector(206.9, -92.1, 0), Vector(147.8, -92.1, 0)), False)
sketch3.addConstraint(Sketcher.Constraint("Coincident", 0, 2, 1, 1))
sketch3.addConstraint(Sketcher.Constraint("Coincident", 1, 2, 2, 1))
sketch3.addConstraint(Sketcher.Constraint("Coincident", 2, 2, 3, 1))
sketch3.addConstraint(Sketcher.Constraint("Coincident", 3, 2, 0, 1))
sketch3.addConstraint(Sketcher.Constraint("Coincident", 4, 2, 5, 1))
sketch3.addConstraint(Sketcher.Constraint("Coincident", 5, 2, 6, 1))
sketch3.addConstraint(Sketcher.Constraint("Coincident", 6, 2, 7, 1))
sketch3.addConstraint(Sketcher.Constraint("Coincident", 7, 2, 4, 1))
sketch3.addConstraint(Sketcher.Constraint("Coincident", 8, 2, 9, 1))
sketch3.addConstraint(Sketcher.Constraint("Coincident", 9, 2, 10, 1))
sketch3.addConstraint(Sketcher.Constraint("Coincident", 10, 2, 11, 1))
sketch3.addConstraint(Sketcher.Constraint("Coincident", 11, 2, 8, 1))
sketch3.addConstraint(Sketcher.Constraint("Coincident", 12, 2, 13, 1))
sketch3.addConstraint(Sketcher.Constraint("Coincident", 13, 2, 14, 1))
sketch3.addConstraint(Sketcher.Constraint("Coincident", 14, 2, 15, 1))
sketch3.addConstraint(Sketcher.Constraint("Coincident", 15, 2, 12, 1))
sketch3.addConstraint(Sketcher.Constraint("Coincident", 16, 2, 17, 1))
sketch3.addConstraint(Sketcher.Constraint("Coincident", 17, 2, 18, 1))
sketch3.addConstraint(Sketcher.Constraint("Coincident", 18, 2, 19, 1))
sketch3.addConstraint(Sketcher.Constraint("Coincident", 19, 2, 16, 1))
sketch3.addConstraint(Sketcher.Constraint("Coincident", 20, 2, 21, 1))
sketch3.addConstraint(Sketcher.Constraint("Coincident", 21, 2, 22, 1))
sketch3.addConstraint(Sketcher.Constraint("Coincident", 22, 2, 23, 1))
sketch3.addConstraint(Sketcher.Constraint("Coincident", 23, 2, 20, 1))
sketch3.addConstraint(Sketcher.Constraint("Coincident", 24, 2, 25, 1))
sketch3.addConstraint(Sketcher.Constraint("Coincident", 25, 2, 26, 1))
sketch3.addConstraint(Sketcher.Constraint("Coincident", 26, 2, 27, 1))
sketch3.addConstraint(Sketcher.Constraint("Coincident", 27, 2, 24, 1))
sketch3.addConstraint(Sketcher.Constraint("Coincident", 28, 2, 29, 1))
sketch3.addConstraint(Sketcher.Constraint("Coincident", 29, 2, 30, 1))
sketch3.addConstraint(Sketcher.Constraint("Coincident", 30, 2, 31, 1))
sketch3.addConstraint(Sketcher.Constraint("Coincident", 31, 2, 28, 1))
sketch3.addConstraint(Sketcher.Constraint("Coincident", 32, 2, 33, 1))
sketch3.addConstraint(Sketcher.Constraint("Coincident", 33, 2, 34, 1))
sketch3.addConstraint(Sketcher.Constraint("Coincident", 34, 2, 35, 1))
sketch3.addConstraint(Sketcher.Constraint("Coincident", 35, 2, 32, 1))
sketch3.addConstraint(Sketcher.Constraint("Coincident", 36, 2, 37, 1))
sketch3.addConstraint(Sketcher.Constraint("Coincident", 37, 2, 38, 1))
sketch3.addConstraint(Sketcher.Constraint("Coincident", 38, 2, 39, 1))
sketch3.addConstraint(Sketcher.Constraint("Coincident", 39, 2, 36, 1))
sketch3.addConstraint(Sketcher.Constraint("Coincident", 40, 2, 41, 1))
sketch3.addConstraint(Sketcher.Constraint("Coincident", 41, 2, 42, 1))
sketch3.addConstraint(Sketcher.Constraint("Coincident", 42, 2, 43, 1))
sketch3.addConstraint(Sketcher.Constraint("Coincident", 43, 2, 40, 1))
sketch3.addConstraint(Sketcher.Constraint("Coincident", 44, 2, 45, 1))
sketch3.addConstraint(Sketcher.Constraint("Coincident", 45, 2, 46, 1))
sketch3.addConstraint(Sketcher.Constraint("Coincident", 46, 2, 47, 1))
sketch3.addConstraint(Sketcher.Constraint("Coincident", 47, 2, 44, 1))
sketch3.addConstraint(Sketcher.Constraint("Vertical", 0))
sketch3.addConstraint(Sketcher.Constraint("Horizontal", 1))
sketch3.addConstraint(Sketcher.Constraint("Vertical", 2))
sketch3.addConstraint(Sketcher.Constraint("Horizontal", 3))
sketch3.addConstraint(Sketcher.Constraint("Vertical", 4))
sketch3.addConstraint(Sketcher.Constraint("Horizontal", 5))
sketch3.addConstraint(Sketcher.Constraint("Vertical", 6))
sketch3.addConstraint(Sketcher.Constraint("Horizontal", 7))
sketch3.addConstraint(Sketcher.Constraint("Vertical", 8))
sketch3.addConstraint(Sketcher.Constraint("Horizontal", 9))
sketch3.addConstraint(Sketcher.Constraint("Vertical", 10))
sketch3.addConstraint(Sketcher.Constraint("Horizontal", 11))
sketch3.addConstraint(Sketcher.Constraint("Vertical", 12))
sketch3.addConstraint(Sketcher.Constraint("Horizontal", 13))
sketch3.addConstraint(Sketcher.Constraint("Vertical", 14))
sketch3.addConstraint(Sketcher.Constraint("Horizontal", 15))
sketch3.addConstraint(Sketcher.Constraint("Vertical", 16))
sketch3.addConstraint(Sketcher.Constraint("Horizontal", 17))
sketch3.addConstraint(Sketcher.Constraint("Vertical", 18))
sketch3.addConstraint(Sketcher.Constraint("Horizontal", 19))
sketch3.addConstraint(Sketcher.Constraint("Vertical", 20))
sketch3.addConstraint(Sketcher.Constraint("Horizontal", 21))
sketch3.addConstraint(Sketcher.Constraint("Vertical", 22))
sketch3.addConstraint(Sketcher.Constraint("Horizontal", 23))
sketch3.addConstraint(Sketcher.Constraint("Vertical", 24))
sketch3.addConstraint(Sketcher.Constraint("Horizontal", 25))
sketch3.addConstraint(Sketcher.Constraint("Vertical", 26))
sketch3.addConstraint(Sketcher.Constraint("Horizontal", 27))
sketch3.addConstraint(Sketcher.Constraint("Vertical", 28))
sketch3.addConstraint(Sketcher.Constraint("Horizontal", 29))
sketch3.addConstraint(Sketcher.Constraint("Vertical", 30))
sketch3.addConstraint(Sketcher.Constraint("Horizontal", 31))
sketch3.addConstraint(Sketcher.Constraint("Vertical", 32))
sketch3.addConstraint(Sketcher.Constraint("Horizontal", 33))
sketch3.addConstraint(Sketcher.Constraint("Vertical", 34))
sketch3.addConstraint(Sketcher.Constraint("Horizontal", 35))
sketch3.addConstraint(Sketcher.Constraint("Vertical", 36))
sketch3.addConstraint(Sketcher.Constraint("Horizontal", 37))
sketch3.addConstraint(Sketcher.Constraint("Vertical", 38))
sketch3.addConstraint(Sketcher.Constraint("Horizontal", 39))
sketch3.addConstraint(Sketcher.Constraint("Vertical", 40))
sketch3.addConstraint(Sketcher.Constraint("Horizontal", 41))
sketch3.addConstraint(Sketcher.Constraint("Vertical", 42))
sketch3.addConstraint(Sketcher.Constraint("Horizontal", 43))
sketch3.addConstraint(Sketcher.Constraint("Vertical", 44))
sketch3.addConstraint(Sketcher.Constraint("Horizontal", 45))
sketch3.addConstraint(Sketcher.Constraint("Vertical", 46))
sketch3.addConstraint(Sketcher.Constraint("Horizontal", 47))
sketch3.addConstraint(Sketcher.Constraint("Symmetric", 22, 2, 24, 2, -1, 1))
sketch3.addConstraint(Sketcher.Constraint("Symmetric", 20, 2, 26, 2, -1, 1))
sketch3.addConstraint(Sketcher.Constraint("Symmetric", 18, 2, 28, 2, -1, 1))
sketch3.addConstraint(Sketcher.Constraint("Symmetric", 16, 2, 30, 2, -1, 1))
sketch3.addConstraint(Sketcher.Constraint("Symmetric", 14, 2, 32, 2, -1, 1))
sketch3.addConstraint(Sketcher.Constraint("Symmetric", 12, 2, 34, 2, -1, 1))
sketch3.addConstraint(Sketcher.Constraint("Symmetric", 10, 2, 36, 2, -1, 1))
sketch3.addConstraint(Sketcher.Constraint("Symmetric", 8, 2, 38, 2, -1, 1))
sketch3.addConstraint(Sketcher.Constraint("Symmetric", 6, 2, 40, 2, -1, 1))
sketch3.addConstraint(Sketcher.Constraint("Symmetric", 4, 2, 42, 2, -1, 1))
sketch3.addConstraint(Sketcher.Constraint("Symmetric", 2, 2, 44, 2, -1, 1))
sketch3.addConstraint(Sketcher.Constraint("Symmetric", 0, 2, 46, 2, -1, 1))
sketch3.addConstraint(Sketcher.Constraint("Symmetric", 5, 2, 8, 2, -2))
sketch3.addConstraint(Sketcher.Constraint("Symmetric", 7, 2, 10, 2, -2))
sketch3.addConstraint(Sketcher.Constraint("Symmetric", 1, 2, 12, 2, -2))
sketch3.addConstraint(Sketcher.Constraint("Symmetric", 3, 2, 14, 2, -2))
sketch3.addConstraint(Sketcher.Constraint("Symmetric", 17, 2, 24, 2, -2))
sketch3.addConstraint(Sketcher.Constraint("Symmetric", 19, 2, 26, 2, -2))
sketch3.addConstraint(Sketcher.Constraint("Horizontal", 1, 2, 4, 2))
sketch3.addConstraint(Sketcher.Constraint("Horizontal", 3, 2, 6, 2))
sketch3.addConstraint(Sketcher.Constraint("Equal", 3, 5))
sketch3.addConstraint(Sketcher.Constraint("Equal", 31, 0))
sketch3.addConstraint(Sketcher.Constraint("DistanceX", -1, 1, 16, 2, Q("15 in")))
sketch3.addConstraint(Sketcher.Constraint("DistanceY", 32, 2, 3, 2, Q("7 in")))
sketch3.addConstraint(Sketcher.Constraint("DistanceX", 17, 1, 17, 2, Q("0.125 in")))
sketch3.addConstraint(Sketcher.Constraint("DistanceX", 1, 1, 1, 2, 59.103846))
sketch3.addConstraint(Sketcher.Constraint("DistanceY", 16, 1, 16, 2, 26.307143))
sketch3.addConstraint(Sketcher.Constraint("DistanceX", 0, 2, -1, 1, 206.863462))
sketch3.addConstraint(Sketcher.Constraint("DistanceX", 4, 2, -1, 1, 88.655769))
sketch3.addConstraint(Sketcher.Constraint("DistanceY", -1, 1, 18, 2, 13.153571))
pad2 = body.newObject("PartDesign::Pad", "Pad001")
pad2.Profile = sketch3
pad2.Length = Q("0.25 in")

doc.recompute()
